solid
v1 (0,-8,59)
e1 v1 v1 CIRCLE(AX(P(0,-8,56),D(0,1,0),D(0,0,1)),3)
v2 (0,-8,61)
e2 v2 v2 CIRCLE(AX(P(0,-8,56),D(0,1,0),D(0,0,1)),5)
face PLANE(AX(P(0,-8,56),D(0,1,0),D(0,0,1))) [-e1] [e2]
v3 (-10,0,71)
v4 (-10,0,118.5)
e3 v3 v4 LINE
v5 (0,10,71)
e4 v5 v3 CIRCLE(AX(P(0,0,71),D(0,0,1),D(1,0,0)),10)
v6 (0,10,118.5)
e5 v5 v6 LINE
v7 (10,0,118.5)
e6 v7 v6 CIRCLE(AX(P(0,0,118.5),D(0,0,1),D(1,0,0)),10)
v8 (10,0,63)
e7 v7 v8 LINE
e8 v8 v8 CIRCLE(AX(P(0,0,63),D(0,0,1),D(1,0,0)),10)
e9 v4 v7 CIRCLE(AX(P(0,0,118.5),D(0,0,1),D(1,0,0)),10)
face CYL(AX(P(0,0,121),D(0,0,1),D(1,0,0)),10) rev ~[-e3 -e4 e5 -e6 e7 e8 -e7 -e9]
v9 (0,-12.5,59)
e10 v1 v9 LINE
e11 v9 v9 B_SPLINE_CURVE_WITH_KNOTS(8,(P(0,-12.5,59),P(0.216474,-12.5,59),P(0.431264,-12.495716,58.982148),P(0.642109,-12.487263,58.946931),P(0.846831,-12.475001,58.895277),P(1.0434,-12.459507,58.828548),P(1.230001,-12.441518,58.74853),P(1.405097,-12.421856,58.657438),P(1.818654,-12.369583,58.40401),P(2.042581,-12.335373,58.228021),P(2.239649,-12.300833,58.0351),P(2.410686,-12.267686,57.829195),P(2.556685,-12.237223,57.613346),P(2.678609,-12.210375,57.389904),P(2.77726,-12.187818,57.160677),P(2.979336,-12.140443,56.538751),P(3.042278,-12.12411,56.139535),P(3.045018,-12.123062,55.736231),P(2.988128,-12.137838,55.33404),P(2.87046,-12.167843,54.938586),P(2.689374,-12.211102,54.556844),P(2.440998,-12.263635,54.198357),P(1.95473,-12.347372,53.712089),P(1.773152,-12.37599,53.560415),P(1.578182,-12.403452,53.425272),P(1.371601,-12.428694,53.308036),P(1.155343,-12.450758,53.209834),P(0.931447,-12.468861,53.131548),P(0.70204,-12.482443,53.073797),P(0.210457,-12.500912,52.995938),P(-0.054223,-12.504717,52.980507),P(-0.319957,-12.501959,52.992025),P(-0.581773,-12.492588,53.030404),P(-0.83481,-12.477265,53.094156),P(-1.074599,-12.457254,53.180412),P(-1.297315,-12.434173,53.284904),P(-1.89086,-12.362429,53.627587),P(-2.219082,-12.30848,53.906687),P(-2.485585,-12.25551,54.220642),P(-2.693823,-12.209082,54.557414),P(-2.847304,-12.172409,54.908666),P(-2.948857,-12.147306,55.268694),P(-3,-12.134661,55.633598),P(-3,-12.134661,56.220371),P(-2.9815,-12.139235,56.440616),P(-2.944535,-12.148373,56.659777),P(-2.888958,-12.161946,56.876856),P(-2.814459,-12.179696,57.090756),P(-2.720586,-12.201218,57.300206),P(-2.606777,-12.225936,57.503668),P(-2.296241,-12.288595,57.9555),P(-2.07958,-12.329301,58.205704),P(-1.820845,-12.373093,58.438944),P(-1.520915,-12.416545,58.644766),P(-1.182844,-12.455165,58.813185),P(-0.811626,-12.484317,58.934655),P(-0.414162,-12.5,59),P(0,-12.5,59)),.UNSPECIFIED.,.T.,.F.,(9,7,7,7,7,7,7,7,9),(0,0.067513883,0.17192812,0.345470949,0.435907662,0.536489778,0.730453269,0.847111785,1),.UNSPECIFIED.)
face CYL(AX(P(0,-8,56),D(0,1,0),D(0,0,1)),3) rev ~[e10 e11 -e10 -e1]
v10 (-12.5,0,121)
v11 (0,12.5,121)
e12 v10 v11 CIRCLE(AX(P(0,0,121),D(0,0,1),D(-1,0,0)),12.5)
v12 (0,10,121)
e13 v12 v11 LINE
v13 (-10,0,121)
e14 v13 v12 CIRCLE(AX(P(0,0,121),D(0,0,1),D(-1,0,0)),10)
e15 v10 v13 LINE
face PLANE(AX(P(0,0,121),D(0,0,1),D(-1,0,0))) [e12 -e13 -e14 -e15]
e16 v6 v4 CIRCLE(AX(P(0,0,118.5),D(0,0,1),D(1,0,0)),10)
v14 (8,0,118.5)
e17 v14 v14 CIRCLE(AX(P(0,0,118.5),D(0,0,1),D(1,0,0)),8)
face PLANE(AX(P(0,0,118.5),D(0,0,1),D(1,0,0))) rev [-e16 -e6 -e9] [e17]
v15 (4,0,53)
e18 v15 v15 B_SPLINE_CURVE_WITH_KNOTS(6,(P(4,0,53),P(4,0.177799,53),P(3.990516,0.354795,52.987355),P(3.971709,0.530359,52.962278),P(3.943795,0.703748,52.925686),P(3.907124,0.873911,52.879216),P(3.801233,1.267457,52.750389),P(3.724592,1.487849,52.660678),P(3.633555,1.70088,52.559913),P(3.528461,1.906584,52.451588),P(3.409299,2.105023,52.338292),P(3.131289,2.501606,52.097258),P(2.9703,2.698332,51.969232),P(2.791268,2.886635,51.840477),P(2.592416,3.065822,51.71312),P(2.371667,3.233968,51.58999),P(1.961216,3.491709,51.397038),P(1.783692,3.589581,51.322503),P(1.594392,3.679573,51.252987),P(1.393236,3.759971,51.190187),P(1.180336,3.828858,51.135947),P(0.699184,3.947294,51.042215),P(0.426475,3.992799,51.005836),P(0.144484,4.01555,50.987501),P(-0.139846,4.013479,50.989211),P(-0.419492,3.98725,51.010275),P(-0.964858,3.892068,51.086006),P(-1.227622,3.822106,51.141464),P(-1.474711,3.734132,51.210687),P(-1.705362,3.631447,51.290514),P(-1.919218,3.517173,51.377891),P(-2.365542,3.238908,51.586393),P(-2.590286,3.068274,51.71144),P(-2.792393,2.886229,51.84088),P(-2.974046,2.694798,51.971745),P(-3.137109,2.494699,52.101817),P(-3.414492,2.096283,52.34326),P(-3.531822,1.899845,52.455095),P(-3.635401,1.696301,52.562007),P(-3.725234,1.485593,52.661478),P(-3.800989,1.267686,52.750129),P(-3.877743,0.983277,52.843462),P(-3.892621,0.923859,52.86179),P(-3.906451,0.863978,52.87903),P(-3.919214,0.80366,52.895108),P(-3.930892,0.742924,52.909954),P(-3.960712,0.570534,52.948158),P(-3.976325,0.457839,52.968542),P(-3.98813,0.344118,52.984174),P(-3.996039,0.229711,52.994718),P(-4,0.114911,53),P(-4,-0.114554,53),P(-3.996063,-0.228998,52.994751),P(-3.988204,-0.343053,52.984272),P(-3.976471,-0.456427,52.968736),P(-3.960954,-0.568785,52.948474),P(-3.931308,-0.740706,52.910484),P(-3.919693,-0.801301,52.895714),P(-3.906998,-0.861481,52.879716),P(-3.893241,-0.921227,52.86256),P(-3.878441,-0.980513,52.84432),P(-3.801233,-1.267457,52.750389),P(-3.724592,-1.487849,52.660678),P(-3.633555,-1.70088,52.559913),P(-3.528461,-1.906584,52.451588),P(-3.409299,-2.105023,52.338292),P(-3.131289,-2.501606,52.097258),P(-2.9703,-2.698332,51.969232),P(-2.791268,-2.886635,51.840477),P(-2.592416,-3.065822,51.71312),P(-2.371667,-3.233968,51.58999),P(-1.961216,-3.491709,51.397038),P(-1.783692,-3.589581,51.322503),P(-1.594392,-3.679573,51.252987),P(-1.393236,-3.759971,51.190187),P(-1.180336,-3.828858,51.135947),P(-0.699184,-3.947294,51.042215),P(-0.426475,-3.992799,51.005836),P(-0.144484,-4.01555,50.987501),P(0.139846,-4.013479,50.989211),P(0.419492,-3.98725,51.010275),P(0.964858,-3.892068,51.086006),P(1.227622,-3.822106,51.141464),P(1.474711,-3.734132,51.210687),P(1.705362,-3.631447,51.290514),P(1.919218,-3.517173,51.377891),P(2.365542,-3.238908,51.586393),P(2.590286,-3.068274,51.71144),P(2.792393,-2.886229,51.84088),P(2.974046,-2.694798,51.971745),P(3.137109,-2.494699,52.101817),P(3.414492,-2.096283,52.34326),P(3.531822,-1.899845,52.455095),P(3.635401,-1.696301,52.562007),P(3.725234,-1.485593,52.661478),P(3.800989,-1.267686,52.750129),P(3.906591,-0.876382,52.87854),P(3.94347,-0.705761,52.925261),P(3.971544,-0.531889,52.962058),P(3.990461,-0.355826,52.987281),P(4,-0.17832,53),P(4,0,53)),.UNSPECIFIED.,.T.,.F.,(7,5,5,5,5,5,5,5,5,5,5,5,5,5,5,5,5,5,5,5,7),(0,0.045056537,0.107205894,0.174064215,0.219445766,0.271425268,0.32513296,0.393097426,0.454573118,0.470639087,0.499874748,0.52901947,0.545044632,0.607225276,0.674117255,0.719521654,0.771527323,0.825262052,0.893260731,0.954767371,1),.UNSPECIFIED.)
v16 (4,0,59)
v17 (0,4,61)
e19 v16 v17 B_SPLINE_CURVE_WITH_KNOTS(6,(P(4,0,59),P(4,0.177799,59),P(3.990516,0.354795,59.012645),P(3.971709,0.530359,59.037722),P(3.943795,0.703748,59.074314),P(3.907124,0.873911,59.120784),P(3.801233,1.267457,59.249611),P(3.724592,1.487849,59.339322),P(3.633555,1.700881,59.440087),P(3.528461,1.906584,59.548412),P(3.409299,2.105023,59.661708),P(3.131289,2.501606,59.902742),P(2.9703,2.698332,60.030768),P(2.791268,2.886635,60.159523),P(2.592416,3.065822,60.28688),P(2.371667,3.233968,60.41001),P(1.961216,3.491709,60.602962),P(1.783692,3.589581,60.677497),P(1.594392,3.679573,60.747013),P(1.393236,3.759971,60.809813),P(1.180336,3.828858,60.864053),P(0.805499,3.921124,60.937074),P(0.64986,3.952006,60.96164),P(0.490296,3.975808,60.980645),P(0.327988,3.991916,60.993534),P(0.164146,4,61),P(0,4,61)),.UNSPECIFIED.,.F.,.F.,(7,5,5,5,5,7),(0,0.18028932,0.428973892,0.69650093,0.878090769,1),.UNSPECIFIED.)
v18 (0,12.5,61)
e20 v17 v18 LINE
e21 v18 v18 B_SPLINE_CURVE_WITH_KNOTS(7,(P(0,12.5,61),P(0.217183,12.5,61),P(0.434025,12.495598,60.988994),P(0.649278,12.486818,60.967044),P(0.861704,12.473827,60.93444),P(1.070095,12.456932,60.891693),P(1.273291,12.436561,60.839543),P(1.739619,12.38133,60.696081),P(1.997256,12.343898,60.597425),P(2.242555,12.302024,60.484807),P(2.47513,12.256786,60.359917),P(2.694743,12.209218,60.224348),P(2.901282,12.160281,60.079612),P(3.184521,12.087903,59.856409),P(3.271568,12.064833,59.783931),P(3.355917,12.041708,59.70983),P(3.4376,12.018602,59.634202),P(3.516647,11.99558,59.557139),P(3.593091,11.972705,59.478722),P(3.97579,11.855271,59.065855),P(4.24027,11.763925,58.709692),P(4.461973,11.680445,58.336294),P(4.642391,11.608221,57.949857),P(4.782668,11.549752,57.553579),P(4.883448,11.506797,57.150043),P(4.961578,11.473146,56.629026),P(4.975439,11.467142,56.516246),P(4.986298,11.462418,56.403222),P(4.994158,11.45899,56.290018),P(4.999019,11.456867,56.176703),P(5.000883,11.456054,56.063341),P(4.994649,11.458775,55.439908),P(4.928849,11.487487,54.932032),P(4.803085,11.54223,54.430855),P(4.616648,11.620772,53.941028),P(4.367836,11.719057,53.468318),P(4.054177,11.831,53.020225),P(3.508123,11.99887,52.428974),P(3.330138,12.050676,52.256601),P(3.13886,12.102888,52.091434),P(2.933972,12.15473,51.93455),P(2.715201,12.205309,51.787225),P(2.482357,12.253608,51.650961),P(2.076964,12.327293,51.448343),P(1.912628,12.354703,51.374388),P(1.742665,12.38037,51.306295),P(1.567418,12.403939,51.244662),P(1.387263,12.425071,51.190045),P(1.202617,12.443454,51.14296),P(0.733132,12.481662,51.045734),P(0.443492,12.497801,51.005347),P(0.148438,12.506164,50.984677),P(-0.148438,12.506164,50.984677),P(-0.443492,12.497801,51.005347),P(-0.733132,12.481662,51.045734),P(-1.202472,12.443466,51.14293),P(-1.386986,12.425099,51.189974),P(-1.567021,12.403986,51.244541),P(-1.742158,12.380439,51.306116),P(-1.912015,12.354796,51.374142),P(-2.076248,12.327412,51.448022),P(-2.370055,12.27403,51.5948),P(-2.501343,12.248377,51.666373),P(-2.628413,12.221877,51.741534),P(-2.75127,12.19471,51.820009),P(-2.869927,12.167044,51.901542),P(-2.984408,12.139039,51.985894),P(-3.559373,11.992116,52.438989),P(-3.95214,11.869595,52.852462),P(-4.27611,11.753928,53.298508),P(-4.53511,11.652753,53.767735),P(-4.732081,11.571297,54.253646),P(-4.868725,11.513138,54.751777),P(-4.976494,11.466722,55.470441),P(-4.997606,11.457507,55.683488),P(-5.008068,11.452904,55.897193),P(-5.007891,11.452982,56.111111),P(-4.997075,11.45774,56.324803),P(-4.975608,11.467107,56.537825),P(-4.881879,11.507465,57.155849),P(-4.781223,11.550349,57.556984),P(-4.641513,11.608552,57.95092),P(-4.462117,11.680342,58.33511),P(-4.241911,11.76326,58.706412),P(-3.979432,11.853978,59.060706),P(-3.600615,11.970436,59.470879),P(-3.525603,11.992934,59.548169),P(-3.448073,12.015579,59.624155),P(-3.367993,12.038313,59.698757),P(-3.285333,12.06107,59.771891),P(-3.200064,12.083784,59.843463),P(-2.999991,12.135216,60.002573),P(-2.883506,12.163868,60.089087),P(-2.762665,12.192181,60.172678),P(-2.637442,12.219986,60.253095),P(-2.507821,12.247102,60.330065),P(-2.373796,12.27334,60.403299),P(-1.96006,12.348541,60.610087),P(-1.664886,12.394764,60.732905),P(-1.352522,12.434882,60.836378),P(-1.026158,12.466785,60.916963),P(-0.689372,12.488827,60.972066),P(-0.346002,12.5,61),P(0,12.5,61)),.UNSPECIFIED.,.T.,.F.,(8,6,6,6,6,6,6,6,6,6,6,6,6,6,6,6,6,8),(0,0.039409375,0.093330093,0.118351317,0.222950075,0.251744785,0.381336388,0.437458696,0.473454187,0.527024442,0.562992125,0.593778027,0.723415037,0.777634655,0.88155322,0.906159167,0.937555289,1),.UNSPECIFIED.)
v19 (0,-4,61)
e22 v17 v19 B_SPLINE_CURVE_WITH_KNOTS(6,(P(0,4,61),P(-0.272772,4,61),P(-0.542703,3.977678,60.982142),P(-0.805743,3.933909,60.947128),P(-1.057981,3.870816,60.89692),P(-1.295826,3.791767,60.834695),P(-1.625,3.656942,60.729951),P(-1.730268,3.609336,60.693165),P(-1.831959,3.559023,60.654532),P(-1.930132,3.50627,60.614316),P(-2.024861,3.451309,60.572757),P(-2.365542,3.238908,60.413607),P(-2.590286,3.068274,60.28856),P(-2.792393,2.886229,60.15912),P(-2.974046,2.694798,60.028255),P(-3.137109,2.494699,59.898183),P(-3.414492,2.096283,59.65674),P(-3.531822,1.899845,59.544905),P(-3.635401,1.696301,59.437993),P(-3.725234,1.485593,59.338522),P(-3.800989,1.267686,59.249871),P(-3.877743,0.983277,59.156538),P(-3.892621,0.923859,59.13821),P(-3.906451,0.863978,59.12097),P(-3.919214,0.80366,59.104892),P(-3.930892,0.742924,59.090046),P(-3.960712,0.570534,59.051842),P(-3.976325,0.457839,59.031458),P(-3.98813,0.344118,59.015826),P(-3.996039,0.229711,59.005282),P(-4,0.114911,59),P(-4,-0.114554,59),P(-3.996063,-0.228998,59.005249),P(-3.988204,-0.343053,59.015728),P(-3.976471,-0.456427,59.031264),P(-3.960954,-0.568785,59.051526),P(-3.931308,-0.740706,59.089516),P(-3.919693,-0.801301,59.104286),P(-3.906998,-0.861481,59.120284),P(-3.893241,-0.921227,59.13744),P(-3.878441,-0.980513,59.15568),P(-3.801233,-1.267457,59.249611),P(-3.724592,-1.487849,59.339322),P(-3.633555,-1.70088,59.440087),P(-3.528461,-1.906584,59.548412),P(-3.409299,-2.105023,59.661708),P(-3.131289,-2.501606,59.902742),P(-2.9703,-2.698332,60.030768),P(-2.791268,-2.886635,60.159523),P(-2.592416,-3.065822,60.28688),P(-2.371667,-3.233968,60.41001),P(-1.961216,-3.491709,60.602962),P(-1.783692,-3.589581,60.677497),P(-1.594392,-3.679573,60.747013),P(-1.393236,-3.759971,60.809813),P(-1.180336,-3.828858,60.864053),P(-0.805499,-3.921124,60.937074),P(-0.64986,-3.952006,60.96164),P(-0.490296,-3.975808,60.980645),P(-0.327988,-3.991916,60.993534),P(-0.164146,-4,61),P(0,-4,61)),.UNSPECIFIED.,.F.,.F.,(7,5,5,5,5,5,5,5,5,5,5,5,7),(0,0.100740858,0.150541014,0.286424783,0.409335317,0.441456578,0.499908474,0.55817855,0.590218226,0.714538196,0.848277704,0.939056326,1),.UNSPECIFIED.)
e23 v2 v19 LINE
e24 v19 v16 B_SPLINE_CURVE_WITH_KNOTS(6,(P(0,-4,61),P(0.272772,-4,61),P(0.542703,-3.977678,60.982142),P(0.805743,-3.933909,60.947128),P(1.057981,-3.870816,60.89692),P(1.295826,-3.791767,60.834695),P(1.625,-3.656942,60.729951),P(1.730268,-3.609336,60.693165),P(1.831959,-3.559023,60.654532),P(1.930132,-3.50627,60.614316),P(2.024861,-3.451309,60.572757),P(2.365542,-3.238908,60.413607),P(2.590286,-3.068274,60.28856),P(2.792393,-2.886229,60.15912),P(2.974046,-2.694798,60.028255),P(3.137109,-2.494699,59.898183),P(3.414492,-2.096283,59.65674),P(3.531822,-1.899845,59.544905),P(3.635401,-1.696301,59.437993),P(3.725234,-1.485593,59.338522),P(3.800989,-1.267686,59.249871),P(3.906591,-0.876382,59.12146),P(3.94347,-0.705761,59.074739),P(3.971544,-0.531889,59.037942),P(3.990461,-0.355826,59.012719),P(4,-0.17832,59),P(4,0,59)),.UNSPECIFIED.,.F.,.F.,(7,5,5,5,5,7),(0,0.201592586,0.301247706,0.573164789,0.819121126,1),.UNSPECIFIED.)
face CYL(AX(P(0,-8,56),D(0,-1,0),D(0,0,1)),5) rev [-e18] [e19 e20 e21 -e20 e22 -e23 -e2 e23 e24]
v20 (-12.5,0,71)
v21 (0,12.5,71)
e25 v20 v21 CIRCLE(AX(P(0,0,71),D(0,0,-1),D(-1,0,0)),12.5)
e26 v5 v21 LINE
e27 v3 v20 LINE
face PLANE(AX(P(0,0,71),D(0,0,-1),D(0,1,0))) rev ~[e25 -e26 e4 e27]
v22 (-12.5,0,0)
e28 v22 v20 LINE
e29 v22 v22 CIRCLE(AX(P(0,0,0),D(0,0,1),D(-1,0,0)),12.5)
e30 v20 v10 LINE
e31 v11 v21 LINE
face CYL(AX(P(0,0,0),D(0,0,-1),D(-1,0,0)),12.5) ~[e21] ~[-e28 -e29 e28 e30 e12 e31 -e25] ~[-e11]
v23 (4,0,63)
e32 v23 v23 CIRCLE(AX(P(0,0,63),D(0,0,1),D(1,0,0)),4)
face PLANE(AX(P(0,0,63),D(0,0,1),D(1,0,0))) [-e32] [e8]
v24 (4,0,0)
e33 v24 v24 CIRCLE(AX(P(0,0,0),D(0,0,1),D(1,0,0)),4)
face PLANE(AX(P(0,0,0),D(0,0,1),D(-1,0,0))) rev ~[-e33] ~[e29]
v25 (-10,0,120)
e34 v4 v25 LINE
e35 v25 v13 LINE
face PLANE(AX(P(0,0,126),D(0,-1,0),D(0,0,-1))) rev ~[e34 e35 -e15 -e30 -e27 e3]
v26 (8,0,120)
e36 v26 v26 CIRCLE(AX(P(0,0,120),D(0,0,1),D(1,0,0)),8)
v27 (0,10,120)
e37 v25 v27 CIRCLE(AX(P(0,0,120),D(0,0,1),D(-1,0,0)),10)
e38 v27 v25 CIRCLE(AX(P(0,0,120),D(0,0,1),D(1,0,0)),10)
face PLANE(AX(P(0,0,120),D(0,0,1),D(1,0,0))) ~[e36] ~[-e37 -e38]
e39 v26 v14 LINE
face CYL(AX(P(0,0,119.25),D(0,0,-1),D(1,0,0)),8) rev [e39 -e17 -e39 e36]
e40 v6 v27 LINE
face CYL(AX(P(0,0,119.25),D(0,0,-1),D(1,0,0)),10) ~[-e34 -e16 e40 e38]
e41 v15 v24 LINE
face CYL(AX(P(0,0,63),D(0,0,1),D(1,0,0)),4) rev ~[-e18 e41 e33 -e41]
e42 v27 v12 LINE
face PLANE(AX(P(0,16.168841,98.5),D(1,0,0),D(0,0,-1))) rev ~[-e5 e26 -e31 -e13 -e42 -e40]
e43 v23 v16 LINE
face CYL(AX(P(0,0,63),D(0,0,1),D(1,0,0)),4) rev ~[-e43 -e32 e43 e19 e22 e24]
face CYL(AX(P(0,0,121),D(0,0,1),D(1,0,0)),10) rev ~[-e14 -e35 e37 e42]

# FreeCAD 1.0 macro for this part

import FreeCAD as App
import Part
import Sketcher
from FreeCAD import Vector

doc = App.newDocument("Part")
body = doc.addObject("PartDesign::Body", "Body")

# Sketch on XY plane
sketch1 = body.newObject("Sketcher::SketchObject", "Sketch")
sketch1.AttachmentSupport = (doc.getObject("XY_Plane"), [""])
sketch1.MapMode = "FlatFace"
sketch1.addGeometry(Part.Circle(Vector(0, 0, 0), Vector(0, 0, 1), 12), False)
sketch1.addConstraint(Sketcher.Constraint("Coincident", 0, 3, -1, 1))
sketch1.addConstraint(Sketcher.Constraint("Diameter", 0, 25.0))
pad1 = body.newObject("PartDesign::Pad", "Pad")
pad1.Profile = sketch1
pad1.Length = 121

# Sketch on XY plane
sketch2 = body.newObject("Sketcher::SketchObject", "Sketch001")
sketch2.AttachmentSupport = (doc.getObject("XY_Plane"), [""])
sketch2.MapMode = "FlatFace"
sketch2.AttachmentOffset = App.Placement(Vector(0, 0, 121), App.Rotation())
sketch2.addGeometry(Part.Circle(Vector(0, 0, 0), Vector(0, 0, 1), 10), False)
sketch2.addConstraint(Sketcher.Constraint("Coincident", 0, 3, -1, 1))
sketch2.addConstraint(Sketcher.Constraint("Diameter", 0, 20.0))
pocket1 = body.newObject("PartDesign::Pocket", "Pocket")
pocket1.Profile = sketch2
pocket1.Length = 58

# Sketch on XY plane
sketch3 = body.newObject("Sketcher::SketchObject", "Sketch002")
sketch3.AttachmentSupport = (doc.getObject("XY_Plane"), [""])
sketch3.MapMode = "FlatFace"
sketch3.AttachmentOffset = App.Placement(Vector(0, 0, 63), App.Rotation())
sketch3.addGeometry(Part.Circle(Vector(0, 0, 0), Vector(0, 0, 1), 4), False)
sketch3.addConstraint(Sketcher.Constraint("Coincident", 0, 3, -1, 1))
sketch3.addConstraint(Sketcher.Constraint("Diameter", 0, 8.0))
pocket2 = body.newObject("PartDesign::Pocket", "Pocket001")
pocket2.Profile = sketch3
pocket2.Type = "ThroughAll"

# Sketch on XZ plane
sketch4 = body.newObject("Sketcher::SketchObject", "Sketch003")
sketch4.AttachmentSupport = (doc.getObject("XZ_Plane"), [""])
sketch4.MapMode = "FlatFace"
sketch4.addGeometry(Part.Circle(Vector(0, 56, 0), Vector(0, 0, 1), 5), False)
sketch4.addConstraint(Sketcher.Constraint("PointOnObject", 0, 3, -2))
sketch4.addConstraint(Sketcher.Constraint("Diameter", 0, 10.0))
sketch4.addConstraint(Sketcher.Constraint("DistanceY", -1, 1, 0, 3, 56.0))
pocket3 = body.newObject("PartDesign::Pocket", "Pocket002")
pocket3.Profile = sketch4
pocket3.Type = "TwoLengths"
pocket3.Length = 15
pocket3.Length2 = 8

# Sketch on XZ plane
sketch5 = body.newObject("Sketcher::SketchObject", "Sketch004")
sketch5.AttachmentSupport = (doc.getObject("XZ_Plane"), [""])
sketch5.MapMode = "FlatFace"
sketch5.AttachmentOffset = App.Placement(Vector(0, 0, 8), App.Rotation())
sketch5.addGeometry(Part.Circle(Vector(0, 56, 0), Vector(0, 0, 1), 3), False)
sketch5.addConstraint(Sketcher.Constraint("PointOnObject", 0, 3, -2))
sketch5.addConstraint(Sketcher.Constraint("Diameter", 0, 6.0))
sketch5.addConstraint(Sketcher.Constraint("DistanceY", -1, 1, 0, 3, 56.0))
pocket4 = body.newObject("PartDesign::Pocket", "Pocket003")
pocket4.Profile = sketch5
pocket4.Type = "ThroughAll"
pocket4.Reversed = True

# Sketch on YZ plane
sketch6 = body.newObject("Sketcher::SketchObject", "Sketch005")
sketch6.AttachmentSupport = (doc.getObject("YZ_Plane"), [""])
sketch6.MapMode = "FlatFace"
sketch6.addGeometry(Part.LineSegment(Vector(32, 126, 0), Vector(0, 126, 0)), False)
sketch6.addGeometry(Part.LineSegment(Vector(0, 126, 0), Vector(0, 71, 0)), False)
sketch6.addGeometry(Part.LineSegment(Vector(0, 71, 0), Vector(32, 71, 0)), False)
sketch6.addGeometry(Part.LineSegment(Vector(32, 71, 0), Vector(32, 126, 0)), False)
sketch6.addConstraint(Sketcher.Constraint("Coincident", 0, 2, 1, 1))
sketch6.addConstraint(Sketcher.Constraint("Coincident", 1, 2, 2, 1))
sketch6.addConstraint(Sketcher.Constraint("Coincident", 2, 2, 3, 1))
sketch6.addConstraint(Sketcher.Constraint("Coincident", 3, 2, 0, 1))
sketch6.addConstraint(Sketcher.Constraint("Horizontal", 0))
sketch6.addConstraint(Sketcher.Constraint("Vertical", 1))
sketch6.addConstraint(Sketcher.Constraint("Horizontal", 2))
sketch6.addConstraint(Sketcher.Constraint("Vertical", 3))
sketch6.addConstraint(Sketcher.Constraint("PointOnObject", 0, 2, -2))
sketch6.addConstraint(Sketcher.Constraint("DistanceY", 1, 2, 1, 1, 55.0))
sketch6.addConstraint(Sketcher.Constraint("DistanceY", -1, 1, 0, 2, 126.0))
sketch6.addConstraint(Sketcher.Constraint("DistanceX", 0, 2, 0, 1, 32.337682))
pocket5 = body.newObject("PartDesign::Pocket", "Pocket004")
pocket5.Profile = sketch6
pocket5.Type = "ThroughAll"

# Sketch on YZ plane
sketch7 = body.newObject("Sketcher::SketchObject", "Sketch006")
sketch7.AttachmentSupport = (doc.getObject("YZ_Plane"), [""])
sketch7.MapMode = "FlatFace"
sketch7.addGeometry(Part.LineSegment(Vector(10, 120, 0), Vector(8, 120, 0)), False)
sketch7.addGeometry(Part.LineSegment(Vector(8, 120, 0), Vector(8, 118.5, 0)), False)
sketch7.addGeometry(Part.LineSegment(Vector(8, 118.5, 0), Vector(10, 118.5, 0)), False)
sketch7.addGeometry(Part.LineSegment(Vector(10, 118.5, 0), Vector(10, 120, 0)), False)
sketch7.addConstraint(Sketcher.Constraint("Coincident", 0, 2, 1, 1))
sketch7.addConstraint(Sketcher.Constraint("Coincident", 1, 2, 2, 1))
sketch7.addConstraint(Sketcher.Constraint("Coincident", 2, 2, 3, 1))
sketch7.addConstraint(Sketcher.Constraint("Coincident", 3, 2, 0, 1))
sketch7.addConstraint(Sketcher.Constraint("Horizontal", 0))
sketch7.addConstraint(Sketcher.Constraint("Vertical", 1))
sketch7.addConstraint(Sketcher.Constraint("Horizontal", 2))
sketch7.addConstraint(Sketcher.Constraint("Vertical", 3))
sketch7.addConstraint(Sketcher.Constraint("DistanceX", 0, 2, 0, 1, 2.0))
sketch7.addConstraint(Sketcher.Constraint("DistanceY", 1, 2, 1, 1, 1.5))
sketch7.addConstraint(Sketcher.Constraint("DistanceX", -1, 1, 0, 2, 8.0))
sketch7.addConstraint(Sketcher.Constraint("DistanceY", -1, 1, 0, 2, 120.0))
revolution = body.newObject("PartDesign::Revolution", "Revolution")
revolution.Profile = sketch7
revolution.ReferenceAxis = (sketch7, ["V_Axis"])
revolution.Angle = 360

doc.recompute()
